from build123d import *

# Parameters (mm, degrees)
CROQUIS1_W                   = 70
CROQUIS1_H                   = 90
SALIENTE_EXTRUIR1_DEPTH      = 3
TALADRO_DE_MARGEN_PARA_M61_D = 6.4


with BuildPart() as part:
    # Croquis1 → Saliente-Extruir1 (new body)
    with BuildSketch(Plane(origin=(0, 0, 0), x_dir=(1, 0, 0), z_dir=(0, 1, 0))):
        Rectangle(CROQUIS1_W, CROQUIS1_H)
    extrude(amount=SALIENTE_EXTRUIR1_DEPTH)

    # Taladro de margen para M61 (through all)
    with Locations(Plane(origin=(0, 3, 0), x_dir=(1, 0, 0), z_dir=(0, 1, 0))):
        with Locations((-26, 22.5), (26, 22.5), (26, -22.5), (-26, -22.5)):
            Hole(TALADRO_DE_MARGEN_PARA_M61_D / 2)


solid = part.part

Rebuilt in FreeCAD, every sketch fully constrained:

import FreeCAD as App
import Part
import Sketcher

V = App.Vector
Q = App.Units.Quantity


def add_polygon(sketch, points):
    """Adds a closed chain of lines whose ends are joined by coincident constraints."""
    first, n = sketch.GeometryCount, len(points)
    for a, b in zip(points, points[1:] + points[:1]):
        sketch.addGeometry(Part.LineSegment(App.Vector(*a, 0), App.Vector(*b, 0)), False)
    for i in range(n):
        sketch.addConstraint(Sketcher.Constraint("Coincident", first + i, 2, first + (i + 1) % n, 1))

doc = App.newDocument("Part")
body = doc.addObject("PartDesign::Body", "Body")

sketch1 = doc.addObject("Sketcher::SketchObject", "Sketch")
body.addObject(sketch1)
sketch1.AttachmentSupport = (doc.XZ_Plane, [""])
sketch1.MapMode = "FlatFace"
add_polygon(sketch1, [(-35, -45), (-35, 45), (35, 45), (35, -45)])
sketch1.addConstraint([
    Sketcher.Constraint("Vertical", 0),
    Sketcher.Constraint("Horizontal", 1),
    Sketcher.Constraint("Vertical", 2),
    Sketcher.Constraint("Horizontal", 3),
    Sketcher.Constraint("Symmetric", 0, 2, 2, 2, -1, 1),
    Sketcher.Constraint("DistanceX", 1, 1, 1, 2, Q("70 mm")),
    Sketcher.Constraint("DistanceY", 0, 1, 0, 2, Q("90 mm")),
])
pad1 = doc.addObject("PartDesign::Pad", "Pad")
body.addObject(pad1)
pad1.Profile = sketch1
pad1.Length = 3
pad1.Reversed = True

sketch2 = doc.addObject("Sketcher::SketchObject", "Sketch001")
body.addObject(sketch2)
sketch2.AttachmentSupport = (doc.XZ_Plane, [""])
sketch2.MapMode = "FlatFace"
sketch2.AttachmentOffset = App.Placement(V(0, 0, -3), App.Rotation())
sketch2.addGeometry([
    Part.Circle(V(-26, -22.5, 0), V(0, 0, 1), 3.2),
    Part.Circle(V(26, -22.5, 0), V(0, 0, 1), 3.2),
    Part.Circle(V(26, 22.5, 0), V(0, 0, 1), 3.2),
    Part.Circle(V(-26, 22.5, 0), V(0, 0, 1), 3.2),
], False)
sketch2.addConstraint([
    Sketcher.Constraint("Equal", 0, 1),
    Sketcher.Constraint("Equal", 1, 2),
    Sketcher.Constraint("Equal", 2, 3),
    Sketcher.Constraint("Symmetric", 0, 3, 2, 3, -1, 1),
    Sketcher.Constraint("Symmetric", 1, 3, 3, 3, -1, 1),
    Sketcher.Constraint("Symmetric", 0, 3, 1, 3, -2),
    Sketcher.Constraint("Diameter", 0, Q("6.4 mm")),
    Sketcher.Constraint("DistanceX", 0, 3, -1, 1, Q("26 mm")),
    Sketcher.Constraint("DistanceY", 1, 3, 2, 3, Q("45 mm")),
])
doc.recompute()
hole = doc.addObject("PartDesign::Hole", "Hole")
body.addObject(hole)
hole.Profile = sketch2
hole.ThreadType = "None"
hole.Diameter = 6.4
hole.DepthType = "ThroughAll"
hole.Reversed = True

doc.recompute()
